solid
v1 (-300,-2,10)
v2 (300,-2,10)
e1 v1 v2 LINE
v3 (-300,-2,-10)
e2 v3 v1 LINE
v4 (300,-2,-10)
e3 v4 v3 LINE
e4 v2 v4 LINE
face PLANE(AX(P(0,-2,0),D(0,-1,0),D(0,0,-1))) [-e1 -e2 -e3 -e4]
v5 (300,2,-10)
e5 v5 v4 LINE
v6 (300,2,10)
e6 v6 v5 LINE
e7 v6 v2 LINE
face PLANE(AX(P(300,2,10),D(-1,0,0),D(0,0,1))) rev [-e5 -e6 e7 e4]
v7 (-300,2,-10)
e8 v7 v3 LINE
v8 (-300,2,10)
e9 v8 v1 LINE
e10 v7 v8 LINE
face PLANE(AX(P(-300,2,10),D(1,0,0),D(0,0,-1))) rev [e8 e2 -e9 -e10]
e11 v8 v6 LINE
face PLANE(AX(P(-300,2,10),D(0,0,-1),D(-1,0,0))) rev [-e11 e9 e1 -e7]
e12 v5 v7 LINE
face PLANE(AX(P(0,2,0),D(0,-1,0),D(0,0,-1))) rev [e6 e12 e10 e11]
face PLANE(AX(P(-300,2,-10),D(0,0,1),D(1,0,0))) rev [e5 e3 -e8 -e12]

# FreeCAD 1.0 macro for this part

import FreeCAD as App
import Part
import Sketcher
from FreeCAD import Vector

doc = App.newDocument("Part")
body = doc.addObject("PartDesign::Body", "Body")

# Sketch on XZ plane
sketch1 = body.newObject("Sketcher::SketchObject", "Sketch")
sketch1.AttachmentSupport = (doc.getObject("XZ_Plane"), [""])
sketch1.MapMode = "FlatFace"
sketch1.addGeometry([
    Part.LineSegment(Vector(-300, -10, 0), Vector(-300, 10, 0)),
    Part.LineSegment(Vector(-300, 10, 0), Vector(300, 10, 0)),
    Part.LineSegment(Vector(300, 10, 0), Vector(300, -10, 0)),
    Part.LineSegment(Vector(300, -10, 0), Vector(-300, -10, 0)),
], False)
sketch1.addConstraint([
    Sketcher.Constraint("Coincident", 0, 2, 1, 1),
    Sketcher.Constraint("Coincident", 1, 2, 2, 1),
    Sketcher.Constraint("Coincident", 2, 2, 3, 1),
    Sketcher.Constraint("Coincident", 3, 2, 0, 1),
    Sketcher.Constraint("Vertical", 0),
    Sketcher.Constraint("Horizontal", 1),
    Sketcher.Constraint("Vertical", 2),
    Sketcher.Constraint("Horizontal", 3),
    Sketcher.Constraint("Symmetric", 0, 2, 2, 2, -1, 1),
    Sketcher.Constraint("DistanceX", 1, 1, 1, 2, 600.0),
    Sketcher.Constraint("DistanceY", 0, 1, 0, 2, 20.0),
])
pad1 = body.newObject("PartDesign::Pad", "Pad")
pad1.Profile = sketch1
pad1.Length = 4
pad1.Midplane = True

doc.recompute()
